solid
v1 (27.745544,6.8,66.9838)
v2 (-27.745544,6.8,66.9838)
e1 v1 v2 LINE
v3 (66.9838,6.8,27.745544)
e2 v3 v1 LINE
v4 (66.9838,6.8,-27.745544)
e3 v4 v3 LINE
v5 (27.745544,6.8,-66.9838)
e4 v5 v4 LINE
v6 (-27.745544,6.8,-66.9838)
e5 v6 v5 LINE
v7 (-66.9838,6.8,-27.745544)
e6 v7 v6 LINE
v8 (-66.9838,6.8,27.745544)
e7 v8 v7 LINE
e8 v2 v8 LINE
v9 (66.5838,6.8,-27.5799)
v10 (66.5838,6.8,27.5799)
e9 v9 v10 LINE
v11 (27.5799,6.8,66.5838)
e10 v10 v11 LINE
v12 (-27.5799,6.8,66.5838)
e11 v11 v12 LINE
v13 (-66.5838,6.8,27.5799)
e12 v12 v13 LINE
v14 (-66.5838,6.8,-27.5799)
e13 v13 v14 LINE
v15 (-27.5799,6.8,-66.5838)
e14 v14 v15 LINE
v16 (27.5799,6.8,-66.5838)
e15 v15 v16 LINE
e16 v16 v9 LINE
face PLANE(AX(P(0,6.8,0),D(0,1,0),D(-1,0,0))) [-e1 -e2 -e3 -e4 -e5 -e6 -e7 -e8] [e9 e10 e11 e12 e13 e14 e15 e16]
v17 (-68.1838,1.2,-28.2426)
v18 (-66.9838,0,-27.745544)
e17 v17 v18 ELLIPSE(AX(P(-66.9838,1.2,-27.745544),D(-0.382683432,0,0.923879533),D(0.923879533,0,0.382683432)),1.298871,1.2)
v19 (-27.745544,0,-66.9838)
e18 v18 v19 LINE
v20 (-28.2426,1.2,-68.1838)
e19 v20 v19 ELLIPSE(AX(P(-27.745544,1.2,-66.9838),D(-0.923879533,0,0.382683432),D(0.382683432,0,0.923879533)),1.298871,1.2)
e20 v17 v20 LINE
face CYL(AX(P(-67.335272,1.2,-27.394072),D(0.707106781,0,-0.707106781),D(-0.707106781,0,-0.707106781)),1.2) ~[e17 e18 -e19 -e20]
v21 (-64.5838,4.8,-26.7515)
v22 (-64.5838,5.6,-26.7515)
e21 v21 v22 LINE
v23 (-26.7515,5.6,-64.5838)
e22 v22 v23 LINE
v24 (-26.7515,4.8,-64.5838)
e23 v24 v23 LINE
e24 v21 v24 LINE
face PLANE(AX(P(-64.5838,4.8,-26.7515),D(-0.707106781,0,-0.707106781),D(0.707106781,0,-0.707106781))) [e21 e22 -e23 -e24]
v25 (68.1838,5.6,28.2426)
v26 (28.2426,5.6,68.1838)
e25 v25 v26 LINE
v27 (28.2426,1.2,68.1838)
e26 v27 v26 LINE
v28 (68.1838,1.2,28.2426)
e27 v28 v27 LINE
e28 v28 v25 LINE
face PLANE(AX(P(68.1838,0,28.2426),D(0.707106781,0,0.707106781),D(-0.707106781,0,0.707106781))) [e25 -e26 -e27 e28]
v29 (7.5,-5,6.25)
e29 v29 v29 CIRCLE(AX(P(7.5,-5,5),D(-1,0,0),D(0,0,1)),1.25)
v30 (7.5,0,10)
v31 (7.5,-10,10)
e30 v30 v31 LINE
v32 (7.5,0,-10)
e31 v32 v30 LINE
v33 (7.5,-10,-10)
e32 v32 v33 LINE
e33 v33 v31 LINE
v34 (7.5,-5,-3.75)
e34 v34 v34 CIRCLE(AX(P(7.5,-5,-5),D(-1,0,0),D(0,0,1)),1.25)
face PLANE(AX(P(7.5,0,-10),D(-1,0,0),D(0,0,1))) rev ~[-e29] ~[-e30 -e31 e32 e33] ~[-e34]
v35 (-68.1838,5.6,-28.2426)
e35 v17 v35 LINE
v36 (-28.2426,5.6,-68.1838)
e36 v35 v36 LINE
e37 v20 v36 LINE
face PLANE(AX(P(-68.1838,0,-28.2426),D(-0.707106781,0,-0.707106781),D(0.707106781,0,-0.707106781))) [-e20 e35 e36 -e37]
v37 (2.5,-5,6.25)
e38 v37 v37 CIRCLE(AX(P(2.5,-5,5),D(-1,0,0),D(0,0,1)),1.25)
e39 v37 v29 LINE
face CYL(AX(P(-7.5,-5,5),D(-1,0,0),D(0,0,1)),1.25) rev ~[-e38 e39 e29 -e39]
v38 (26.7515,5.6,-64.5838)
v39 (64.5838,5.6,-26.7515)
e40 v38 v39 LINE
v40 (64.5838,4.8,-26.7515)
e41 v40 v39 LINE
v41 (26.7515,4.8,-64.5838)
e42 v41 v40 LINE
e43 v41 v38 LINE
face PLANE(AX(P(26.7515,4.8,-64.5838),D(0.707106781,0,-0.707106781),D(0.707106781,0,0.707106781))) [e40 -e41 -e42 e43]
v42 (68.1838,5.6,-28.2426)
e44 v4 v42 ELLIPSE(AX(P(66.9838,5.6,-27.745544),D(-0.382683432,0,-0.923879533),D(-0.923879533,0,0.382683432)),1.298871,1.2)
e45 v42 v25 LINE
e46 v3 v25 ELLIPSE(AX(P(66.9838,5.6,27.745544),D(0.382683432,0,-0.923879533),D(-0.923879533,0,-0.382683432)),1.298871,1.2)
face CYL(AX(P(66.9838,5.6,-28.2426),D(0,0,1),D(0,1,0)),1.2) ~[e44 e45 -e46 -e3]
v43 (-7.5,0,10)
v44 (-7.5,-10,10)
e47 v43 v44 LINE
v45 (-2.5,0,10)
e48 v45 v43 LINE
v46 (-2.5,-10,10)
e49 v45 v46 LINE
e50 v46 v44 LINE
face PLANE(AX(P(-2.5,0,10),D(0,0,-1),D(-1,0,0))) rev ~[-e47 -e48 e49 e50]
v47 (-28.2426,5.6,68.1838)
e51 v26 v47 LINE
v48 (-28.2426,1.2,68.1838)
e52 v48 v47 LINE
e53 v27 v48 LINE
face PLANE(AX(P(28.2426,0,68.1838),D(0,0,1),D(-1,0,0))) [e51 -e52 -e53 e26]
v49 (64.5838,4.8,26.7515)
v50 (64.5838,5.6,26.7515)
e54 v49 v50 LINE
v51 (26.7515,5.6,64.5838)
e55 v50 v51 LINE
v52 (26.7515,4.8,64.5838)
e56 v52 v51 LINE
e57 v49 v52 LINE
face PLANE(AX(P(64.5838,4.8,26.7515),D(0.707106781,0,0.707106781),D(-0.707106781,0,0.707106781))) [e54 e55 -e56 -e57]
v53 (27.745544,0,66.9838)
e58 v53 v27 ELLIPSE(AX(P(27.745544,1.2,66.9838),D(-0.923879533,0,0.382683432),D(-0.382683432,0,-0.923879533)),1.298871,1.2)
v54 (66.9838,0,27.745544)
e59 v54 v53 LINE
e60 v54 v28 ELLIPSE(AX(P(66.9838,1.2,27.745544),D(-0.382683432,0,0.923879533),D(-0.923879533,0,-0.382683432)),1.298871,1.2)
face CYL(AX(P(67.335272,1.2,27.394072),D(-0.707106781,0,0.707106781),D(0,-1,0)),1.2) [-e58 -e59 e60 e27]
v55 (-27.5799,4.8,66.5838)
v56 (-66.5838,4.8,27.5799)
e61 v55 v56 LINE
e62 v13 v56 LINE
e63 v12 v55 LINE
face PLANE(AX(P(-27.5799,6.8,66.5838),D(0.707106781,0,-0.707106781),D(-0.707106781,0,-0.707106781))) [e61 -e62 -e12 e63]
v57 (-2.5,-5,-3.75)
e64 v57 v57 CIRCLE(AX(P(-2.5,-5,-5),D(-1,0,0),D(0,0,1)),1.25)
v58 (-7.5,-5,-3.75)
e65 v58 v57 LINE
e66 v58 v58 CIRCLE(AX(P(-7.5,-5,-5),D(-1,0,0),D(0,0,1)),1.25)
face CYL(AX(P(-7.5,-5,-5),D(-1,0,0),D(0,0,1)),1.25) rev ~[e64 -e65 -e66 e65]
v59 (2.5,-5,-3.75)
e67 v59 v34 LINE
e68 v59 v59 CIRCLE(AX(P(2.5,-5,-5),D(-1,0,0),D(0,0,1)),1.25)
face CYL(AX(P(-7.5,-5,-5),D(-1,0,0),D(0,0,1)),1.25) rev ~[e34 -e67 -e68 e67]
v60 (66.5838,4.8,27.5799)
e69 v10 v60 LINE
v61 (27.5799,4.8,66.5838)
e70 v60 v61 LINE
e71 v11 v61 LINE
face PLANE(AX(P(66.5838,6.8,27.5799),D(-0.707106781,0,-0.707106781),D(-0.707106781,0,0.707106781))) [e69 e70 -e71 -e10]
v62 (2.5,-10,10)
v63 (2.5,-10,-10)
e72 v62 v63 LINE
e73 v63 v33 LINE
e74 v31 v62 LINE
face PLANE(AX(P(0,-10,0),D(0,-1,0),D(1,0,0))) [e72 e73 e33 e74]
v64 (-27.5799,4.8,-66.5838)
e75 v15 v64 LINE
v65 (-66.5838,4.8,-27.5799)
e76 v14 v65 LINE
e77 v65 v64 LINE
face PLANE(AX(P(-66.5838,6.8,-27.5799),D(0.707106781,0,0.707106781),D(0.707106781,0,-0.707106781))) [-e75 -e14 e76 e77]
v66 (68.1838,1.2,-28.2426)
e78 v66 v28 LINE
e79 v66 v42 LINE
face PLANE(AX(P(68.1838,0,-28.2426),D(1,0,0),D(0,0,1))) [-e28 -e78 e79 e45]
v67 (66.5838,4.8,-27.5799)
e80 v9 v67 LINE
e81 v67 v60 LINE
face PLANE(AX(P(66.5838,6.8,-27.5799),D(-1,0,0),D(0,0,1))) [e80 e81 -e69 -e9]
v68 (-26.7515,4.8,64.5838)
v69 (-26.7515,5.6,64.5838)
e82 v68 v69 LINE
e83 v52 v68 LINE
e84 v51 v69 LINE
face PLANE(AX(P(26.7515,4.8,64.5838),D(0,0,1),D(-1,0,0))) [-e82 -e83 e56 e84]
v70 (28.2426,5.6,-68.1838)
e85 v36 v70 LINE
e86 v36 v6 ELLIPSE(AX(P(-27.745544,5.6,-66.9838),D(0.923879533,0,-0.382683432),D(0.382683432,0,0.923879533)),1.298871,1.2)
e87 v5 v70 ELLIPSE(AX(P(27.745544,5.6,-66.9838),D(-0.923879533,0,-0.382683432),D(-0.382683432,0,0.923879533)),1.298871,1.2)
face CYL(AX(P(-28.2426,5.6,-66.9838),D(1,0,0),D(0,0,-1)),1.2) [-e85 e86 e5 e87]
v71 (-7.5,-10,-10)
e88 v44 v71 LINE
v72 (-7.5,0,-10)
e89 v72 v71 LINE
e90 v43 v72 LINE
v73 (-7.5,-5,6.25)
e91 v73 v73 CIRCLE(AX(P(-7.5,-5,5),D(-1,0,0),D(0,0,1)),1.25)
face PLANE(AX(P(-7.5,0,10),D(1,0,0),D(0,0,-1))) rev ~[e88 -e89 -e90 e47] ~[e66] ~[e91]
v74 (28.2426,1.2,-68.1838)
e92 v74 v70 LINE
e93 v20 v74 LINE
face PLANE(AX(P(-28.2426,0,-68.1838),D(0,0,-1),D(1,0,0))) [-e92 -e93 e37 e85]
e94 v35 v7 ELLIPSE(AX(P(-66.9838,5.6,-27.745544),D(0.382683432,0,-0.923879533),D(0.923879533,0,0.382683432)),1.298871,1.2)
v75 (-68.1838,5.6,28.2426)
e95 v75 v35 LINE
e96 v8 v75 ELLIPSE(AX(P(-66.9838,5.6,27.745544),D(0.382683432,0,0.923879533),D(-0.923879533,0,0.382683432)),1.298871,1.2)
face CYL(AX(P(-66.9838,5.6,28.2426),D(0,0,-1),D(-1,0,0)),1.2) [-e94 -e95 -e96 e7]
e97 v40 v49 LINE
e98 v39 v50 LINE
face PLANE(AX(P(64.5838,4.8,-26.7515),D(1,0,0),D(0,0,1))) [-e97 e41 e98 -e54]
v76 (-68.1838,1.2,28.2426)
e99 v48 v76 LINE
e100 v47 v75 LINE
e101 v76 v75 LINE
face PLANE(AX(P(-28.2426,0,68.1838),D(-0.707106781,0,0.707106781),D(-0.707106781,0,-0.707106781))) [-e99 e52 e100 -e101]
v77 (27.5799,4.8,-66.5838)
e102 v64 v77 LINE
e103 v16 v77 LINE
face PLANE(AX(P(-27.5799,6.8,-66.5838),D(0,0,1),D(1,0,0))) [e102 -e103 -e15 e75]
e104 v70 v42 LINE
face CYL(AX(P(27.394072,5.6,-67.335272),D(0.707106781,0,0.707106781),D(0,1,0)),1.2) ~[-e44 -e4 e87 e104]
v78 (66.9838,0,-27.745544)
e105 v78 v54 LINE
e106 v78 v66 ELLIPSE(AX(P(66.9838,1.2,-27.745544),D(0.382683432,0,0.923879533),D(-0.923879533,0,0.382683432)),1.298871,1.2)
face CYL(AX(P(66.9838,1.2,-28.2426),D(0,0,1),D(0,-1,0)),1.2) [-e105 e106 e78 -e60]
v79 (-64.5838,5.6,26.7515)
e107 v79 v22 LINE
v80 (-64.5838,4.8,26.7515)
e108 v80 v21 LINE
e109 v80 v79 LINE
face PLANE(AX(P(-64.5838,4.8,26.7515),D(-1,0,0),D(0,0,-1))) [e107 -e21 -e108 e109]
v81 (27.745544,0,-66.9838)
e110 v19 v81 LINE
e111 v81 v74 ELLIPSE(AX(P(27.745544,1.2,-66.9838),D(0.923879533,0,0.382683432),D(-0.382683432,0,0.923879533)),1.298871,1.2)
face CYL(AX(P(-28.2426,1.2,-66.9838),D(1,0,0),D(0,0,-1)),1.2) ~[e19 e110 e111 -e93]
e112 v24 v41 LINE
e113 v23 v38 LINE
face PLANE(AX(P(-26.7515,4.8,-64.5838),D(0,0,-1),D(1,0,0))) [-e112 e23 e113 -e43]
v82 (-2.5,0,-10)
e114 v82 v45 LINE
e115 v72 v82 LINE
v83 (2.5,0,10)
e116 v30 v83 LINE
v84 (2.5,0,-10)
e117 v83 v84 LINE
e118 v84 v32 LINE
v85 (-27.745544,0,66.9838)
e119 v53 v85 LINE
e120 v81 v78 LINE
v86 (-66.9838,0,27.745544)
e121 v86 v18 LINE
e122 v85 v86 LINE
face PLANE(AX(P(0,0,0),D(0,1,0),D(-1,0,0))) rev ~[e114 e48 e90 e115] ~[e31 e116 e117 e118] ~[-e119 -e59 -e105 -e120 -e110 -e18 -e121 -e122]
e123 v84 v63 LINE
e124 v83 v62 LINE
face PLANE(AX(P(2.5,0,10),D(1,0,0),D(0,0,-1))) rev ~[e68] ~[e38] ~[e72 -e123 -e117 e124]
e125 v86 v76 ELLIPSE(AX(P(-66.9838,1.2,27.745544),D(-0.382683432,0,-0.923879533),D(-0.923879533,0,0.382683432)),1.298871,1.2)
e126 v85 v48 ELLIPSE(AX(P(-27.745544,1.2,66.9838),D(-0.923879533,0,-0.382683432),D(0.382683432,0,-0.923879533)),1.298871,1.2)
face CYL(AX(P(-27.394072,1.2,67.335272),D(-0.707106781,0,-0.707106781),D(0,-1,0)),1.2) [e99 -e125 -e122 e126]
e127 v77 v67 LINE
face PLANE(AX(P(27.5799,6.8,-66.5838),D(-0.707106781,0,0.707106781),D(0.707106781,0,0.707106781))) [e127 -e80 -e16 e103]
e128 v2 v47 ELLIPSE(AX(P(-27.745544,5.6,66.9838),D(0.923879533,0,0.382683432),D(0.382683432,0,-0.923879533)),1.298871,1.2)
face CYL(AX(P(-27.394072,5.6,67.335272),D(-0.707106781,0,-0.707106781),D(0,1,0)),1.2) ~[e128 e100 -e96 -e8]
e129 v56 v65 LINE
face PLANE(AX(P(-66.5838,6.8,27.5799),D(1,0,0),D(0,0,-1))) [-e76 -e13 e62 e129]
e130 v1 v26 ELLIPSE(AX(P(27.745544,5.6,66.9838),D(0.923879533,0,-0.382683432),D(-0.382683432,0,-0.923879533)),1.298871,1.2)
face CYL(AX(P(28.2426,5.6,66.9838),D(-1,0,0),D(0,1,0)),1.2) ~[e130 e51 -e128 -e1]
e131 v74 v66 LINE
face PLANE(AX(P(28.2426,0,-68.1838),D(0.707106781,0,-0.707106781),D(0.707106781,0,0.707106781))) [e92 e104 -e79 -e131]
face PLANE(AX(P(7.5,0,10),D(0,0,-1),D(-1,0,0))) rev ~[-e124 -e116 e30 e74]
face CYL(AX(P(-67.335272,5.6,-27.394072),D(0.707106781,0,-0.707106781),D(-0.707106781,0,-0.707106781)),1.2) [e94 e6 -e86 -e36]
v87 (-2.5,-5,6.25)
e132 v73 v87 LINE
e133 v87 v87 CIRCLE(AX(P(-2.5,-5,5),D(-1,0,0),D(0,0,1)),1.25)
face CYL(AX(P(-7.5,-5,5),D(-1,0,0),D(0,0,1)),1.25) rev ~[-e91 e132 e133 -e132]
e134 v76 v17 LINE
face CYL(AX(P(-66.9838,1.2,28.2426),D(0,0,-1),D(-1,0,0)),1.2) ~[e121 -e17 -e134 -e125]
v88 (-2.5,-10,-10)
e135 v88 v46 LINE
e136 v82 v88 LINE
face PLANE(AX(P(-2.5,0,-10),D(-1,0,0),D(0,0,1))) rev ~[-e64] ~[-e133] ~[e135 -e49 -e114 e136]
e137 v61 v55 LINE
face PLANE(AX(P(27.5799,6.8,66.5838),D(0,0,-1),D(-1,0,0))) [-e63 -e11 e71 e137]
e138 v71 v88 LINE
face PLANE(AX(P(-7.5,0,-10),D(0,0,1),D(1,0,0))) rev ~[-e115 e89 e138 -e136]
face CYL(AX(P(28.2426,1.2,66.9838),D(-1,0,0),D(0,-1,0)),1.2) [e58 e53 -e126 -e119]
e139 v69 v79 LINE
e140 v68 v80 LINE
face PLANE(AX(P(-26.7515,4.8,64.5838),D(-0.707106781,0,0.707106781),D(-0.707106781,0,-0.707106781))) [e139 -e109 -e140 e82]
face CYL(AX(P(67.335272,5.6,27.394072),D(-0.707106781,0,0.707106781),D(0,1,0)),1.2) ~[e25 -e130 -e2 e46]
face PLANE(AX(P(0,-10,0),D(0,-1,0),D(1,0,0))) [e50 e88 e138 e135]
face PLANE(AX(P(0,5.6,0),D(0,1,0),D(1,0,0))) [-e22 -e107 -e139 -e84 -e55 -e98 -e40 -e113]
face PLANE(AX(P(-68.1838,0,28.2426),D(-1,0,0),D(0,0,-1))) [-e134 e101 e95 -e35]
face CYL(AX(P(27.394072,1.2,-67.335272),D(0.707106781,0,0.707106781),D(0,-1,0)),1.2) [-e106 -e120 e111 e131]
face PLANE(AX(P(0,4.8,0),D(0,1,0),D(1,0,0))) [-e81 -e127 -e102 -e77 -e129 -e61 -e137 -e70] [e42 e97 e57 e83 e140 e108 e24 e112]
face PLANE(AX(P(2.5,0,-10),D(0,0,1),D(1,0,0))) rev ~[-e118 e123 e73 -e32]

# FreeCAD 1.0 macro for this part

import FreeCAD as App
import Part
import Sketcher

V = App.Vector


def edges_at(feature, points):
    """Names of the edges that pass closest to the given points."""
    edges = feature.Shape.Edges
    near = lambda p: min(range(len(edges)), key=lambda i: edges[i].distToShape(Part.Vertex(*p))[0])
    return sorted({f"Edge{near(p) + 1}" for p in points})

doc = App.newDocument("Part")
body = doc.addObject("PartDesign::Body", "Body")

sketch1 = body.newObject("Sketcher::SketchObject", "Sketch")
sketch1.AttachmentSupport = (doc.getObject("XZ_Plane"), [""])
sketch1.MapMode = "FlatFace"
sketch1.addGeometry([
    Part.LineSegment(V(-28, -68, 0), V(-68, -28, 0)),
    Part.LineSegment(V(-68, -28, 0), V(-68, 28, 0)),
    Part.LineSegment(V(-68, 28, 0), V(-28, 68, 0)),
    Part.LineSegment(V(-28, 68, 0), V(28, 68, 0)),
    Part.LineSegment(V(28, 68, 0), V(68, 28, 0)),
    Part.LineSegment(V(68, 28, 0), V(68, -28, 0)),
    Part.LineSegment(V(68, -28, 0), V(28, -68, 0)),
    Part.LineSegment(V(28, -68, 0), V(-28, -68, 0)),
], False)
sketch1.addConstraint([
    Sketcher.Constraint("Coincident", 0, 2, 1, 1),
    Sketcher.Constraint("Coincident", 1, 2, 2, 1),
    Sketcher.Constraint("Coincident", 2, 2, 3, 1),
    Sketcher.Constraint("Coincident", 3, 2, 4, 1),
    Sketcher.Constraint("Coincident", 4, 2, 5, 1),
    Sketcher.Constraint("Coincident", 5, 2, 6, 1),
    Sketcher.Constraint("Coincident", 6, 2, 7, 1),
    Sketcher.Constraint("Coincident", 7, 2, 0, 1),
    Sketcher.Constraint("Vertical", 1),
    Sketcher.Constraint("Horizontal", 3),
    Sketcher.Constraint("Vertical", 5),
    Sketcher.Constraint("Horizontal", 7),
    Sketcher.Constraint("Symmetric", 0, 2, 4, 2, -1, 1),
    Sketcher.Constraint("Symmetric", 2, 2, 6, 2, -1, 1),
    Sketcher.Constraint("Perpendicular", 0, 2),
    Sketcher.Constraint("Perpendicular", 2, 4),
    Sketcher.Constraint("Perpendicular", 4, 6),
    Sketcher.Constraint("Horizontal", 1, 2, 4, 2),
    Sketcher.Constraint("Vertical", 3, 2, 6, 2),
    Sketcher.Constraint("Equal", 7, 1),
    Sketcher.Constraint("DistanceX", 3, 1, 3, 2, 56.4852),
    Sketcher.Constraint("Distance", 0, 56.4854),
])
pad1 = body.newObject("PartDesign::Pad", "Pad")
pad1.Profile = sketch1
pad1.Length = 6.8
pad1.Reversed = True

sketch2 = body.newObject("Sketcher::SketchObject", "Sketch001")
sketch2.AttachmentSupport = (doc.getObject("XZ_Plane"), [""])
sketch2.MapMode = "FlatFace"
sketch2.AttachmentOffset = App.Placement(V(0, 0, -6.8), App.Rotation())
sketch2.addGeometry([
    Part.LineSegment(V(28, -67, 0), V(-28, -67, 0)),
    Part.LineSegment(V(-28, -67, 0), V(-67, -28, 0)),
    Part.LineSegment(V(-67, -28, 0), V(-67, 28, 0)),
    Part.LineSegment(V(-67, 28, 0), V(-28, 67, 0)),
    Part.LineSegment(V(-28, 67, 0), V(28, 67, 0)),
    Part.LineSegment(V(28, 67, 0), V(67, 28, 0)),
    Part.LineSegment(V(67, 28, 0), V(67, -28, 0)),
    Part.LineSegment(V(67, -28, 0), V(28, -67, 0)),
], False)
sketch2.addConstraint([
    Sketcher.Constraint("Coincident", 0, 2, 1, 1),
    Sketcher.Constraint("Coincident", 1, 2, 2, 1),
    Sketcher.Constraint("Coincident", 2, 2, 3, 1),
    Sketcher.Constraint("Coincident", 3, 2, 4, 1),
    Sketcher.Constraint("Coincident", 4, 2, 5, 1),
    Sketcher.Constraint("Coincident", 5, 2, 6, 1),
    Sketcher.Constraint("Coincident", 6, 2, 7, 1),
    Sketcher.Constraint("Coincident", 7, 2, 0, 1),
    Sketcher.Constraint("Horizontal", 0),
    Sketcher.Constraint("Vertical", 2),
    Sketcher.Constraint("Horizontal", 4),
    Sketcher.Constraint("Vertical", 6),
    Sketcher.Constraint("Symmetric", 0, 2, 4, 2, -1, 1),
    Sketcher.Constraint("Symmetric", 1, 2, 5, 2, -1, 1),
    Sketcher.Constraint("Perpendicular", 1, 3),
    Sketcher.Constraint("Perpendicular", 5, 7),
    Sketcher.Constraint("Horizontal", 2, 2, 5, 2),
    Sketcher.Constraint("Horizontal", 1, 2, 6, 2),
    Sketcher.Constraint("Vertical", 0, 2, 3, 2),
    Sketcher.Constraint("Equal", 4, 2),
    Sketcher.Constraint("DistanceX", 0, 2, -1, 1, 27.58),
    Sketcher.Constraint("DistanceX", 1, 2, 0, 2, 39.004),
])
pocket1 = body.newObject("PartDesign::Pocket", "Pocket")
pocket1.Profile = sketch2
pocket1.Length = 2
pocket1.Reversed = True

sketch3 = body.newObject("Sketcher::SketchObject", "Sketch002")
sketch3.AttachmentSupport = (doc.getObject("XZ_Plane"), [""])
sketch3.MapMode = "FlatFace"
sketch3.addGeometry([
    Part.LineSegment(V(8, -10, 0), V(8, 10, 0)),
    Part.LineSegment(V(8, 10, 0), V(2, 10, 0)),
    Part.LineSegment(V(2, 10, 0), V(2, -10, 0)),
    Part.LineSegment(V(2, -10, 0), V(8, -10, 0)),
    Part.LineSegment(V(-2, -10, 0), V(-2, 10, 0)),
    Part.LineSegment(V(-2, 10, 0), V(-8, 10, 0)),
    Part.LineSegment(V(-8, 10, 0), V(-8, -10, 0)),
    Part.LineSegment(V(-8, -10, 0), V(-2, -10, 0)),
], False)
sketch3.addConstraint([
    Sketcher.Constraint("Coincident", 0, 2, 1, 1),
    Sketcher.Constraint("Coincident", 1, 2, 2, 1),
    Sketcher.Constraint("Coincident", 2, 2, 3, 1),
    Sketcher.Constraint("Coincident", 3, 2, 0, 1),
    Sketcher.Constraint("Coincident", 4, 2, 5, 1),
    Sketcher.Constraint("Coincident", 5, 2, 6, 1),
    Sketcher.Constraint("Coincident", 6, 2, 7, 1),
    Sketcher.Constraint("Coincident", 7, 2, 4, 1),
    Sketcher.Constraint("Vertical", 0),
    Sketcher.Constraint("Horizontal", 1),
    Sketcher.Constraint("Vertical", 2),
    Sketcher.Constraint("Horizontal", 3),
    Sketcher.Constraint("Vertical", 4),
    Sketcher.Constraint("Horizontal", 5),
    Sketcher.Constraint("Vertical", 6),
    Sketcher.Constraint("Horizontal", 7),
    Sketcher.Constraint("Symmetric", 2, 2, 4, 2, -1, 1),
    Sketcher.Constraint("Symmetric", 0, 2, 6, 2, -1, 1),
    Sketcher.Constraint("Horizontal", 1, 2, 4, 2),
    Sketcher.Constraint("DistanceX", 1, 2, 1, 1, 5.0),
    Sketcher.Constraint("DistanceY", 0, 1, 0, 2, 20.0),
    Sketcher.Constraint("DistanceX", 4, 2, 1, 2, 5.0),
])
pad2 = body.newObject("PartDesign::Pad", "Pad001")
pad2.Profile = sketch3
pad2.Length = 10

sketch4 = body.newObject("Sketcher::SketchObject", "Sketch003")
sketch4.AttachmentSupport = (doc.getObject("YZ_Plane"), [""])
sketch4.MapMode = "FlatFace"
sketch4.AttachmentOffset = App.Placement(V(0, 0, -7.5), App.Rotation())
sketch4.addGeometry([
    Part.Circle(V(-5, 5, 0), V(0, 0, 1), 1.2),
    Part.Circle(V(-5, -5, 0), V(0, 0, 1), 1.2),
], False)
sketch4.addConstraint([
    Sketcher.Constraint("Equal", 0, 1),
    Sketcher.Constraint("Symmetric", 0, 3, 1, 3, -1),
    Sketcher.Constraint("Diameter", 0, 2.5),
    Sketcher.Constraint("DistanceX", 0, 3, -1, 1, 5.0),
    Sketcher.Constraint("DistanceY", -1, 1, 0, 3, 5.0),
])
pocket2 = body.newObject("PartDesign::Pocket", "Pocket001")
pocket2.Profile = sketch4
pocket2.Length = 20
pocket2.Reversed = True

sketch5 = body.newObject("Sketcher::SketchObject", "Sketch004")
sketch5.AttachmentSupport = (doc.getObject("XZ_Plane"), [""])
sketch5.MapMode = "FlatFace"
sketch5.AttachmentOffset = App.Placement(V(0, 0, -4.8), App.Rotation())
sketch5.addGeometry([
    Part.LineSegment(V(27, -65, 0), V(-27, -65, 0)),
    Part.LineSegment(V(-27, -65, 0), V(-65, -27, 0)),
    Part.LineSegment(V(-65, -27, 0), V(-65, 27, 0)),
    Part.LineSegment(V(-65, 27, 0), V(-27, 65, 0)),
    Part.LineSegment(V(-27, 65, 0), V(27, 65, 0)),
    Part.LineSegment(V(27, 65, 0), V(65, 27, 0)),
    Part.LineSegment(V(65, 27, 0), V(65, -27, 0)),
    Part.LineSegment(V(65, -27, 0), V(27, -65, 0)),
], False)
sketch5.addConstraint([
    Sketcher.Constraint("Coincident", 0, 2, 1, 1),
    Sketcher.Constraint("Coincident", 1, 2, 2, 1),
    Sketcher.Constraint("Coincident", 2, 2, 3, 1),
    Sketcher.Constraint("Coincident", 3, 2, 4, 1),
    Sketcher.Constraint("Coincident", 4, 2, 5, 1),
    Sketcher.Constraint("Coincident", 5, 2, 6, 1),
    Sketcher.Constraint("Coincident", 6, 2, 7, 1),
    Sketcher.Constraint("Coincident", 7, 2, 0, 1),
    Sketcher.Constraint("Horizontal", 0),
    Sketcher.Constraint("Vertical", 2),
    Sketcher.Constraint("Horizontal", 4),
    Sketcher.Constraint("Vertical", 6),
    Sketcher.Constraint("Symmetric", 0, 2, 4, 2, -1, 1),
    Sketcher.Constraint("Symmetric", 1, 2, 5, 2, -1, 1),
    Sketcher.Constraint("Perpendicular", 1, 3),
    Sketcher.Constraint("Perpendicular", 5, 7),
    Sketcher.Constraint("Horizontal", 2, 2, 5, 2),
    Sketcher.Constraint("Horizontal", 1, 2, 6, 2),
    Sketcher.Constraint("Vertical", 0, 2, 3, 2),
    Sketcher.Constraint("Equal", 4, 2),
    Sketcher.Constraint("DistanceX", 0, 2, 0, 1, 53.503),
    Sketcher.Constraint("Distance", 1, 53.503),
])
pad3 = body.newObject("PartDesign::Pad", "Pad002")
pad3.Profile = sketch5
pad3.Length = 0.8
pad3.Reversed = True
doc.recompute()

fillet = body.newObject("PartDesign::Fillet", "Fillet")
fillet.Base = (pad3, edges_at(pad3, [
    (-48.213, 6.8, 48.213),
    (0, 6.8, 68.184),
    (48.213, 6.8, 48.213),
    (68.184, 6.8, 0),
    (48.213, 6.8, -48.213),
    (0, 6.8, -68.184),
    (-48.213, 6.8, -48.213),
    (-68.184, 6.8, 0),
    (-48.213, 0, 48.213),
    (0, 0, 68.184),
    (48.213, 0, 48.213),
    (68.184, 0, 0),
    (48.213, 0, -48.213),
    (0, 0, -68.184),
    (-48.213, 0, -48.213),
    (-68.184, 0, 0),
]))
fillet.Radius = 1.2

doc.recompute()
